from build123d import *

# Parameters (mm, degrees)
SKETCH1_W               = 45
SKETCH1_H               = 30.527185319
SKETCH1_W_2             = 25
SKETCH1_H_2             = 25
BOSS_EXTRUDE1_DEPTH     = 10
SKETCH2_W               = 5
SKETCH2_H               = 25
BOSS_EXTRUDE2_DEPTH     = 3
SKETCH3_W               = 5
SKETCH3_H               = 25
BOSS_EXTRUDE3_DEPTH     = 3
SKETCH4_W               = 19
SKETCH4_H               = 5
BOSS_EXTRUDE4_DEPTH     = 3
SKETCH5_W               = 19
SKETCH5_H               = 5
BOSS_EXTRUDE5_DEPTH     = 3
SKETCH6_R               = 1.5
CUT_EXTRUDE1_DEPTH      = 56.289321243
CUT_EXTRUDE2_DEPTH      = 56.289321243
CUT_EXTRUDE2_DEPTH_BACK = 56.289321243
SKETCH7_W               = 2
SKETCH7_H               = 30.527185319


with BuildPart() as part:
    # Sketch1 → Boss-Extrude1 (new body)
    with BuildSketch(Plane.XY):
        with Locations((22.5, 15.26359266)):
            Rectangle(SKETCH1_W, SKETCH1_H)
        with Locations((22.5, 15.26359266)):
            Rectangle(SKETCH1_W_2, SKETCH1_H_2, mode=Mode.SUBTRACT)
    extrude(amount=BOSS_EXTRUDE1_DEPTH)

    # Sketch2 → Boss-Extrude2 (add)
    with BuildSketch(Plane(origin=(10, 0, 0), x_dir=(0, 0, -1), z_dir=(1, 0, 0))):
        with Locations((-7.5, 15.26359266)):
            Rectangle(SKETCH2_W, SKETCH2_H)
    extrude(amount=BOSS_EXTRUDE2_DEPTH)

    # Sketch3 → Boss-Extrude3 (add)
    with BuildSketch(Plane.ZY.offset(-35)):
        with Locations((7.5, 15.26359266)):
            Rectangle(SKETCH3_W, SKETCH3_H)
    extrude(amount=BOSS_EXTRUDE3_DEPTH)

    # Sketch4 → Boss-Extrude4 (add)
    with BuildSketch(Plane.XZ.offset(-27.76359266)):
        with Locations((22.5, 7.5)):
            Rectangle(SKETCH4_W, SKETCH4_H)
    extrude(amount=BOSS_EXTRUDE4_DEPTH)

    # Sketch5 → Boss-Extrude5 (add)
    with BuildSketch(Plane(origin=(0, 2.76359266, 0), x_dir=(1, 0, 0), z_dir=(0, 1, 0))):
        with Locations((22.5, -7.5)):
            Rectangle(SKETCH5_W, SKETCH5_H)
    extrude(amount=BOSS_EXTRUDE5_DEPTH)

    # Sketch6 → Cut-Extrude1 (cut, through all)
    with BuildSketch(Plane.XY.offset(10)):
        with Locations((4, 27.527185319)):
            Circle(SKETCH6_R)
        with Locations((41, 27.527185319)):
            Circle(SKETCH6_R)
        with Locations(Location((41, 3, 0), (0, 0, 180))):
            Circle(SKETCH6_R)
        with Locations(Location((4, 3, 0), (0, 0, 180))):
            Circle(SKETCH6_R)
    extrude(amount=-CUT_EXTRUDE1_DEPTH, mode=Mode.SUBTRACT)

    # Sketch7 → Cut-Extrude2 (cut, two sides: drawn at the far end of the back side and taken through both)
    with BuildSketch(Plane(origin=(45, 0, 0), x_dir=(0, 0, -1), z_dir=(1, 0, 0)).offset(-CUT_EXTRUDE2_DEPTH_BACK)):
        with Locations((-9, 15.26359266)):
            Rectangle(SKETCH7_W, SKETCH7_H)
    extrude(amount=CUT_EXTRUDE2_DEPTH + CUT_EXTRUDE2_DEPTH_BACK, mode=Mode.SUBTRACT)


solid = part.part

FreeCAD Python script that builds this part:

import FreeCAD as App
import Part
import Sketcher

V = App.Vector
Q = App.Units.Quantity

doc = App.newDocument("Part")
params = doc.addObject("Spreadsheet::Sheet", "Params")
for row, (alias, value) in enumerate([
    ("sketch1_width", "45 mm"),
    ("sketch1_width2", "25 mm"),
    ("pad1_length", "10 mm"),
    ("sketch2_width", "25 mm"),
    ("sketch2_height", "5 mm"),
    ("pad2_length", "3 mm"),
    ("sketch3_width", "25 mm"),
    ("sketch3_height", "5 mm"),
    ("pad3_length", "3 mm"),
    ("sketch4_width", "19 mm"),
    ("sketch4_height", "5 mm"),
    ("pad4_length", "3 mm"),
    ("sketch5_width", "19 mm"),
    ("sketch5_height", "5 mm"),
    ("pad5_length", "3 mm"),
    ("sketch6_diameter", "3 mm"),
    ("sketch7_height", "2 mm"),
], start=1):
    params.set(f"A{row}", alias)
    params.set(f"B{row}", "=" + value)
    params.setAlias(f"B{row}", alias)

body = doc.addObject("PartDesign::Body", "Body")

# Sketch on XY plane
sketch1 = doc.addObject("Sketcher::SketchObject", "Sketch")
body.addObject(sketch1)
sketch1.AttachmentSupport = (doc.XY_Plane, [""])
sketch1.MapMode = "FlatFace"
sketch1.addGeometry([
    Part.LineSegment(V(0, 30.527185, 0), V(0, 0, 0)),  # 0
    Part.LineSegment(V(0, 0, 0), V(45, 0, 0)),  # 1
    Part.LineSegment(V(45, 0, 0), V(45, 30.527185, 0)),  # 2
    Part.LineSegment(V(45, 30.527185, 0), V(0, 30.527185, 0)),  # 3
    Part.LineSegment(V(35, 2.763593, 0), V(10, 2.763593, 0)),  # 4
    Part.LineSegment(V(10, 2.763593, 0), V(10, 27.763593, 0)),  # 5
    Part.LineSegment(V(10, 27.763593, 0), V(35, 27.763593, 0)),  # 6
    Part.LineSegment(V(35, 27.763593, 0), V(35, 2.763593, 0)),  # 7
], False)
sketch1.addConstraint([
    Sketcher.Constraint("Coincident", 0, 2, 1, 1),
    Sketcher.Constraint("Coincident", 1, 2, 2, 1),
    Sketcher.Constraint("Coincident", 2, 2, 3, 1),
    Sketcher.Constraint("Coincident", 3, 2, 0, 1),
    Sketcher.Constraint("Coincident", 4, 2, 5, 1),
    Sketcher.Constraint("Coincident", 5, 2, 6, 1),
    Sketcher.Constraint("Coincident", 6, 2, 7, 1),
    Sketcher.Constraint("Coincident", 7, 2, 4, 1),
    Sketcher.Constraint("Vertical", 0),
    Sketcher.Constraint("Horizontal", 1),
    Sketcher.Constraint("Vertical", 2),
    Sketcher.Constraint("Horizontal", 3),
    Sketcher.Constraint("Horizontal", 4),
    Sketcher.Constraint("Vertical", 5),
    Sketcher.Constraint("Horizontal", 6),
    Sketcher.Constraint("Vertical", 7),
    Sketcher.Constraint("Coincident", 0, 2, -1, 1),
    Sketcher.Constraint("Equal", 6, 5),
    Sketcher.Constraint("DistanceX", 1, 1, 1, 2, Q("45 mm")),
    Sketcher.Constraint("DistanceX", 4, 2, 4, 1, Q("25 mm")),
    Sketcher.Constraint("DistanceX", -1, 1, 4, 2, Q("10 mm")),
    Sketcher.Constraint("DistanceY", 0, 2, 0, 1, Q("30.527185 mm")),
    Sketcher.Constraint("DistanceY", -1, 1, 4, 2, Q("2.763593 mm")),
])
sketch1.setExpression("Constraints[18]", "Params.sketch1_width")
sketch1.setExpression("Constraints[19]", "Params.sketch1_width2")
pad1 = doc.addObject("PartDesign::Pad", "Pad")
body.addObject(pad1)
pad1.Profile = sketch1
pad1.setExpression("Length", "Params.pad1_length")

# Sketch on YZ plane
sketch2 = doc.addObject("Sketcher::SketchObject", "Sketch001")
body.addObject(sketch2)
sketch2.AttachmentSupport = (doc.YZ_Plane, [""])
sketch2.MapMode = "FlatFace"
sketch2.AttachmentOffset = App.Placement(V(0, 0, 10), App.Rotation())
sketch2.addGeometry([
    Part.LineSegment(V(27.763593, 10, 0), V(2.763593, 10, 0)),
    Part.LineSegment(V(2.763593, 10, 0), V(2.763593, 5, 0)),
    Part.LineSegment(V(2.763593, 5, 0), V(27.763593, 5, 0)),
    Part.LineSegment(V(27.763593, 5, 0), V(27.763593, 10, 0)),
], False)
sketch2.addConstraint([
    Sketcher.Constraint("Coincident", 0, 2, 1, 1),
    Sketcher.Constraint("Coincident", 1, 2, 2, 1),
    Sketcher.Constraint("Coincident", 2, 2, 3, 1),
    Sketcher.Constraint("Coincident", 3, 2, 0, 1),
    Sketcher.Constraint("Horizontal", 0),
    Sketcher.Constraint("Vertical", 1),
    Sketcher.Constraint("Horizontal", 2),
    Sketcher.Constraint("Vertical", 3),
    Sketcher.Constraint("DistanceX", 0, 2, 0, 1, Q("25 mm")),
    Sketcher.Constraint("DistanceY", 1, 2, 1, 1, Q("5 mm")),
    Sketcher.Constraint("DistanceY", -1, 1, 0, 2, Q("10 mm")),
    Sketcher.Constraint("DistanceX", -1, 1, 0, 2, Q("2.763593 mm")),
])
sketch2.setExpression("Constraints[8]", "Params.sketch2_width")
sketch2.setExpression("Constraints[9]", "Params.sketch2_height")
pad2 = doc.addObject("PartDesign::Pad", "Pad001")
body.addObject(pad2)
pad2.Profile = sketch2
pad2.setExpression("Length", "Params.pad2_length")

# Sketch on YZ plane
sketch3 = doc.addObject("Sketcher::SketchObject", "Sketch002")
body.addObject(sketch3)
sketch3.AttachmentSupport = (doc.YZ_Plane, [""])
sketch3.MapMode = "FlatFace"
sketch3.AttachmentOffset = App.Placement(V(0, 0, 35), App.Rotation())
sketch3.addGeometry([
    Part.LineSegment(V(27.763593, 5, 0), V(2.763593, 5, 0)),
    Part.LineSegment(V(2.763593, 5, 0), V(2.763593, 10, 0)),
    Part.LineSegment(V(2.763593, 10, 0), V(27.763593, 10, 0)),
    Part.LineSegment(V(27.763593, 10, 0), V(27.763593, 5, 0)),
], False)
sketch3.addConstraint([
    Sketcher.Constraint("Coincident", 0, 2, 1, 1),
    Sketcher.Constraint("Coincident", 1, 2, 2, 1),
    Sketcher.Constraint("Coincident", 2, 2, 3, 1),
    Sketcher.Constraint("Coincident", 3, 2, 0, 1),
    Sketcher.Constraint("Horizontal", 0),
    Sketcher.Constraint("Vertical", 1),
    Sketcher.Constraint("Horizontal", 2),
    Sketcher.Constraint("Vertical", 3),
    Sketcher.Constraint("DistanceX", 0, 2, 0, 1, Q("25 mm")),
    Sketcher.Constraint("DistanceY", 1, 1, 1, 2, Q("5 mm")),
    Sketcher.Constraint("DistanceY", -1, 1, 0, 2, Q("5 mm")),
    Sketcher.Constraint("DistanceX", -1, 1, 0, 2, Q("2.763593 mm")),
])
sketch3.setExpression("Constraints[8]", "Params.sketch3_width")
sketch3.setExpression("Constraints[9]", "Params.sketch3_height")
pad3 = doc.addObject("PartDesign::Pad", "Pad002")
body.addObject(pad3)
pad3.Profile = sketch3
pad3.setExpression("Length", "Params.pad3_length")
pad3.Reversed = True

# Sketch on XZ plane
sketch4 = doc.addObject("Sketcher::SketchObject", "Sketch003")
body.addObject(sketch4)
sketch4.AttachmentSupport = (doc.XZ_Plane, [""])
sketch4.MapMode = "FlatFace"
sketch4.AttachmentOffset = App.Placement(V(0, 0, -27.763593), App.Rotation())
sketch4.addGeometry([
    Part.LineSegment(V(13, 10, 0), V(13, 5, 0)),
    Part.LineSegment(V(13, 5, 0), V(32, 5, 0)),
    Part.LineSegment(V(32, 5, 0), V(32, 10, 0)),
    Part.LineSegment(V(32, 10, 0), V(13, 10, 0)),
], False)
sketch4.addConstraint([
    Sketcher.Constraint("Coincident", 0, 2, 1, 1),
    Sketcher.Constraint("Coincident", 1, 2, 2, 1),
    Sketcher.Constraint("Coincident", 2, 2, 3, 1),
    Sketcher.Constraint("Coincident", 3, 2, 0, 1),
    Sketcher.Constraint("Vertical", 0),
    Sketcher.Constraint("Horizontal", 1),
    Sketcher.Constraint("Vertical", 2),
    Sketcher.Constraint("Horizontal", 3),
    Sketcher.Constraint("DistanceX", 1, 1, 1, 2, Q("19 mm")),
    Sketcher.Constraint("DistanceY", 0, 2, 0, 1, Q("5 mm")),
    Sketcher.Constraint("DistanceX", -1, 1, 0, 2, Q("13 mm")),
    Sketcher.Constraint("DistanceY", -1, 1, 0, 2, Q("5 mm")),
])
sketch4.setExpression("Constraints[8]", "Params.sketch4_width")
sketch4.setExpression("Constraints[9]", "Params.sketch4_height")
pad4 = doc.addObject("PartDesign::Pad", "Pad003")
body.addObject(pad4)
pad4.Profile = sketch4
pad4.setExpression("Length", "Params.pad4_length")

# Sketch on XZ plane
sketch5 = doc.addObject("Sketcher::SketchObject", "Sketch004")
body.addObject(sketch5)
sketch5.AttachmentSupport = (doc.XZ_Plane, [""])
sketch5.MapMode = "FlatFace"
sketch5.AttachmentOffset = App.Placement(V(0, 0, -2.763593), App.Rotation())
sketch5.addGeometry([
    Part.LineSegment(V(13, 5, 0), V(13, 10, 0)),
    Part.LineSegment(V(13, 10, 0), V(32, 10, 0)),
    Part.LineSegment(V(32, 10, 0), V(32, 5, 0)),
    Part.LineSegment(V(32, 5, 0), V(13, 5, 0)),
], False)
sketch5.addConstraint([
    Sketcher.Constraint("Coincident", 0, 2, 1, 1),
    Sketcher.Constraint("Coincident", 1, 2, 2, 1),
    Sketcher.Constraint("Coincident", 2, 2, 3, 1),
    Sketcher.Constraint("Coincident", 3, 2, 0, 1),
    Sketcher.Constraint("Vertical", 0),
    Sketcher.Constraint("Horizontal", 1),
    Sketcher.Constraint("Vertical", 2),
    Sketcher.Constraint("Horizontal", 3),
    Sketcher.Constraint("DistanceX", 1, 1, 1, 2, Q("19 mm")),
    Sketcher.Constraint("DistanceY", 0, 1, 0, 2, Q("5 mm")),
    Sketcher.Constraint("DistanceX", -1, 1, 0, 2, Q("13 mm")),
    Sketcher.Constraint("DistanceY", -1, 1, 0, 2, Q("10 mm")),
])
sketch5.setExpression("Constraints[8]", "Params.sketch5_width")
sketch5.setExpression("Constraints[9]", "Params.sketch5_height")
pad5 = doc.addObject("PartDesign::Pad", "Pad004")
body.addObject(pad5)
pad5.Profile = sketch5
pad5.setExpression("Length", "Params.pad5_length")
pad5.Reversed = True

# Sketch on XY plane
sketch6 = doc.addObject("Sketcher::SketchObject", "Sketch005")
body.addObject(sketch6)
sketch6.AttachmentSupport = (doc.XY_Plane, [""])
sketch6.MapMode = "FlatFace"
sketch6.AttachmentOffset = App.Placement(V(0, 0, 10), App.Rotation())
sketch6.addGeometry([
    Part.Circle(V(4, 27.527185, 0), V(0, 0, 1), 1.5),
    Part.Circle(V(41, 27.527185, 0), V(0, 0, 1), 1.5),
    Part.Circle(V(41, 3, 0), V(0, 0, 1), 1.5),
    Part.Circle(V(4, 3, 0), V(0, 0, 1), 1.5),
], False)
sketch6.addConstraint([
    Sketcher.Constraint("Equal", 0, 1),
    Sketcher.Constraint("Equal", 1, 2),
    Sketcher.Constraint("Equal", 2, 3),
    Sketcher.Constraint("Horizontal", 0, 3, 1, 3),
    Sketcher.Constraint("Horizontal", 2, 3, 3, 3),
    Sketcher.Constraint("Vertical", 1, 3, 2, 3),
    Sketcher.Constraint("Vertical", 0, 3, 3, 3),
    Sketcher.Constraint("Diameter", 0, Q("3 mm")),
    Sketcher.Constraint("DistanceX", -1, 1, 0, 3, Q("4 mm")),
    Sketcher.Constraint("DistanceX", -1, 1, 1, 3, Q("41 mm")),
    Sketcher.Constraint("DistanceY", -1, 1, 2, 3, Q("3 mm")),
    Sketcher.Constraint("DistanceY", -1, 1, 0, 3, Q("27.527185 mm")),
])
sketch6.setExpression("Constraints[7]", "Params.sketch6_diameter")
pocket1 = doc.addObject("PartDesign::Pocket", "Pocket")
body.addObject(pocket1)
pocket1.Profile = sketch6
pocket1.Type = "ThroughAll"

# Sketch on YZ plane
sketch7 = doc.addObject("Sketcher::SketchObject", "Sketch006")
body.addObject(sketch7)
sketch7.AttachmentSupport = (doc.YZ_Plane, [""])
sketch7.MapMode = "FlatFace"
sketch7.AttachmentOffset = App.Placement(V(0, 0, 45), App.Rotation())
sketch7.addGeometry([
    Part.LineSegment(V(30.527185, 10, 0), V(0, 10, 0)),
    Part.LineSegment(V(0, 10, 0), V(0, 8, 0)),
    Part.LineSegment(V(0, 8, 0), V(30.527185, 8, 0)),
    Part.LineSegment(V(30.527185, 8, 0), V(30.527185, 10, 0)),
], False)
sketch7.addConstraint([
    Sketcher.Constraint("Coincident", 0, 2, 1, 1),
    Sketcher.Constraint("Coincident", 1, 2, 2, 1),
    Sketcher.Constraint("Coincident", 2, 2, 3, 1),
    Sketcher.Constraint("Coincident", 3, 2, 0, 1),
    Sketcher.Constraint("Horizontal", 0),
    Sketcher.Constraint("Vertical", 1),
    Sketcher.Constraint("Horizontal", 2),
    Sketcher.Constraint("Vertical", 3),
    Sketcher.Constraint("PointOnObject", 0, 2, -2),
    Sketcher.Constraint("DistanceY", 1, 2, 1, 1, Q("2 mm")),
    Sketcher.Constraint("DistanceY", -1, 1, 0, 2, Q("10 mm")),
    Sketcher.Constraint("DistanceX", 0, 2, 0, 1, Q("30.527185 mm")),
])
sketch7.setExpression("Constraints[9]", "Params.sketch7_height")
pocket2 = doc.addObject("PartDesign::Pocket", "Pocket001")
body.addObject(pocket2)
pocket2.Profile = sketch7
pocket2.Type = "ThroughAll"
pocket2.Midplane = True

doc.recompute()
